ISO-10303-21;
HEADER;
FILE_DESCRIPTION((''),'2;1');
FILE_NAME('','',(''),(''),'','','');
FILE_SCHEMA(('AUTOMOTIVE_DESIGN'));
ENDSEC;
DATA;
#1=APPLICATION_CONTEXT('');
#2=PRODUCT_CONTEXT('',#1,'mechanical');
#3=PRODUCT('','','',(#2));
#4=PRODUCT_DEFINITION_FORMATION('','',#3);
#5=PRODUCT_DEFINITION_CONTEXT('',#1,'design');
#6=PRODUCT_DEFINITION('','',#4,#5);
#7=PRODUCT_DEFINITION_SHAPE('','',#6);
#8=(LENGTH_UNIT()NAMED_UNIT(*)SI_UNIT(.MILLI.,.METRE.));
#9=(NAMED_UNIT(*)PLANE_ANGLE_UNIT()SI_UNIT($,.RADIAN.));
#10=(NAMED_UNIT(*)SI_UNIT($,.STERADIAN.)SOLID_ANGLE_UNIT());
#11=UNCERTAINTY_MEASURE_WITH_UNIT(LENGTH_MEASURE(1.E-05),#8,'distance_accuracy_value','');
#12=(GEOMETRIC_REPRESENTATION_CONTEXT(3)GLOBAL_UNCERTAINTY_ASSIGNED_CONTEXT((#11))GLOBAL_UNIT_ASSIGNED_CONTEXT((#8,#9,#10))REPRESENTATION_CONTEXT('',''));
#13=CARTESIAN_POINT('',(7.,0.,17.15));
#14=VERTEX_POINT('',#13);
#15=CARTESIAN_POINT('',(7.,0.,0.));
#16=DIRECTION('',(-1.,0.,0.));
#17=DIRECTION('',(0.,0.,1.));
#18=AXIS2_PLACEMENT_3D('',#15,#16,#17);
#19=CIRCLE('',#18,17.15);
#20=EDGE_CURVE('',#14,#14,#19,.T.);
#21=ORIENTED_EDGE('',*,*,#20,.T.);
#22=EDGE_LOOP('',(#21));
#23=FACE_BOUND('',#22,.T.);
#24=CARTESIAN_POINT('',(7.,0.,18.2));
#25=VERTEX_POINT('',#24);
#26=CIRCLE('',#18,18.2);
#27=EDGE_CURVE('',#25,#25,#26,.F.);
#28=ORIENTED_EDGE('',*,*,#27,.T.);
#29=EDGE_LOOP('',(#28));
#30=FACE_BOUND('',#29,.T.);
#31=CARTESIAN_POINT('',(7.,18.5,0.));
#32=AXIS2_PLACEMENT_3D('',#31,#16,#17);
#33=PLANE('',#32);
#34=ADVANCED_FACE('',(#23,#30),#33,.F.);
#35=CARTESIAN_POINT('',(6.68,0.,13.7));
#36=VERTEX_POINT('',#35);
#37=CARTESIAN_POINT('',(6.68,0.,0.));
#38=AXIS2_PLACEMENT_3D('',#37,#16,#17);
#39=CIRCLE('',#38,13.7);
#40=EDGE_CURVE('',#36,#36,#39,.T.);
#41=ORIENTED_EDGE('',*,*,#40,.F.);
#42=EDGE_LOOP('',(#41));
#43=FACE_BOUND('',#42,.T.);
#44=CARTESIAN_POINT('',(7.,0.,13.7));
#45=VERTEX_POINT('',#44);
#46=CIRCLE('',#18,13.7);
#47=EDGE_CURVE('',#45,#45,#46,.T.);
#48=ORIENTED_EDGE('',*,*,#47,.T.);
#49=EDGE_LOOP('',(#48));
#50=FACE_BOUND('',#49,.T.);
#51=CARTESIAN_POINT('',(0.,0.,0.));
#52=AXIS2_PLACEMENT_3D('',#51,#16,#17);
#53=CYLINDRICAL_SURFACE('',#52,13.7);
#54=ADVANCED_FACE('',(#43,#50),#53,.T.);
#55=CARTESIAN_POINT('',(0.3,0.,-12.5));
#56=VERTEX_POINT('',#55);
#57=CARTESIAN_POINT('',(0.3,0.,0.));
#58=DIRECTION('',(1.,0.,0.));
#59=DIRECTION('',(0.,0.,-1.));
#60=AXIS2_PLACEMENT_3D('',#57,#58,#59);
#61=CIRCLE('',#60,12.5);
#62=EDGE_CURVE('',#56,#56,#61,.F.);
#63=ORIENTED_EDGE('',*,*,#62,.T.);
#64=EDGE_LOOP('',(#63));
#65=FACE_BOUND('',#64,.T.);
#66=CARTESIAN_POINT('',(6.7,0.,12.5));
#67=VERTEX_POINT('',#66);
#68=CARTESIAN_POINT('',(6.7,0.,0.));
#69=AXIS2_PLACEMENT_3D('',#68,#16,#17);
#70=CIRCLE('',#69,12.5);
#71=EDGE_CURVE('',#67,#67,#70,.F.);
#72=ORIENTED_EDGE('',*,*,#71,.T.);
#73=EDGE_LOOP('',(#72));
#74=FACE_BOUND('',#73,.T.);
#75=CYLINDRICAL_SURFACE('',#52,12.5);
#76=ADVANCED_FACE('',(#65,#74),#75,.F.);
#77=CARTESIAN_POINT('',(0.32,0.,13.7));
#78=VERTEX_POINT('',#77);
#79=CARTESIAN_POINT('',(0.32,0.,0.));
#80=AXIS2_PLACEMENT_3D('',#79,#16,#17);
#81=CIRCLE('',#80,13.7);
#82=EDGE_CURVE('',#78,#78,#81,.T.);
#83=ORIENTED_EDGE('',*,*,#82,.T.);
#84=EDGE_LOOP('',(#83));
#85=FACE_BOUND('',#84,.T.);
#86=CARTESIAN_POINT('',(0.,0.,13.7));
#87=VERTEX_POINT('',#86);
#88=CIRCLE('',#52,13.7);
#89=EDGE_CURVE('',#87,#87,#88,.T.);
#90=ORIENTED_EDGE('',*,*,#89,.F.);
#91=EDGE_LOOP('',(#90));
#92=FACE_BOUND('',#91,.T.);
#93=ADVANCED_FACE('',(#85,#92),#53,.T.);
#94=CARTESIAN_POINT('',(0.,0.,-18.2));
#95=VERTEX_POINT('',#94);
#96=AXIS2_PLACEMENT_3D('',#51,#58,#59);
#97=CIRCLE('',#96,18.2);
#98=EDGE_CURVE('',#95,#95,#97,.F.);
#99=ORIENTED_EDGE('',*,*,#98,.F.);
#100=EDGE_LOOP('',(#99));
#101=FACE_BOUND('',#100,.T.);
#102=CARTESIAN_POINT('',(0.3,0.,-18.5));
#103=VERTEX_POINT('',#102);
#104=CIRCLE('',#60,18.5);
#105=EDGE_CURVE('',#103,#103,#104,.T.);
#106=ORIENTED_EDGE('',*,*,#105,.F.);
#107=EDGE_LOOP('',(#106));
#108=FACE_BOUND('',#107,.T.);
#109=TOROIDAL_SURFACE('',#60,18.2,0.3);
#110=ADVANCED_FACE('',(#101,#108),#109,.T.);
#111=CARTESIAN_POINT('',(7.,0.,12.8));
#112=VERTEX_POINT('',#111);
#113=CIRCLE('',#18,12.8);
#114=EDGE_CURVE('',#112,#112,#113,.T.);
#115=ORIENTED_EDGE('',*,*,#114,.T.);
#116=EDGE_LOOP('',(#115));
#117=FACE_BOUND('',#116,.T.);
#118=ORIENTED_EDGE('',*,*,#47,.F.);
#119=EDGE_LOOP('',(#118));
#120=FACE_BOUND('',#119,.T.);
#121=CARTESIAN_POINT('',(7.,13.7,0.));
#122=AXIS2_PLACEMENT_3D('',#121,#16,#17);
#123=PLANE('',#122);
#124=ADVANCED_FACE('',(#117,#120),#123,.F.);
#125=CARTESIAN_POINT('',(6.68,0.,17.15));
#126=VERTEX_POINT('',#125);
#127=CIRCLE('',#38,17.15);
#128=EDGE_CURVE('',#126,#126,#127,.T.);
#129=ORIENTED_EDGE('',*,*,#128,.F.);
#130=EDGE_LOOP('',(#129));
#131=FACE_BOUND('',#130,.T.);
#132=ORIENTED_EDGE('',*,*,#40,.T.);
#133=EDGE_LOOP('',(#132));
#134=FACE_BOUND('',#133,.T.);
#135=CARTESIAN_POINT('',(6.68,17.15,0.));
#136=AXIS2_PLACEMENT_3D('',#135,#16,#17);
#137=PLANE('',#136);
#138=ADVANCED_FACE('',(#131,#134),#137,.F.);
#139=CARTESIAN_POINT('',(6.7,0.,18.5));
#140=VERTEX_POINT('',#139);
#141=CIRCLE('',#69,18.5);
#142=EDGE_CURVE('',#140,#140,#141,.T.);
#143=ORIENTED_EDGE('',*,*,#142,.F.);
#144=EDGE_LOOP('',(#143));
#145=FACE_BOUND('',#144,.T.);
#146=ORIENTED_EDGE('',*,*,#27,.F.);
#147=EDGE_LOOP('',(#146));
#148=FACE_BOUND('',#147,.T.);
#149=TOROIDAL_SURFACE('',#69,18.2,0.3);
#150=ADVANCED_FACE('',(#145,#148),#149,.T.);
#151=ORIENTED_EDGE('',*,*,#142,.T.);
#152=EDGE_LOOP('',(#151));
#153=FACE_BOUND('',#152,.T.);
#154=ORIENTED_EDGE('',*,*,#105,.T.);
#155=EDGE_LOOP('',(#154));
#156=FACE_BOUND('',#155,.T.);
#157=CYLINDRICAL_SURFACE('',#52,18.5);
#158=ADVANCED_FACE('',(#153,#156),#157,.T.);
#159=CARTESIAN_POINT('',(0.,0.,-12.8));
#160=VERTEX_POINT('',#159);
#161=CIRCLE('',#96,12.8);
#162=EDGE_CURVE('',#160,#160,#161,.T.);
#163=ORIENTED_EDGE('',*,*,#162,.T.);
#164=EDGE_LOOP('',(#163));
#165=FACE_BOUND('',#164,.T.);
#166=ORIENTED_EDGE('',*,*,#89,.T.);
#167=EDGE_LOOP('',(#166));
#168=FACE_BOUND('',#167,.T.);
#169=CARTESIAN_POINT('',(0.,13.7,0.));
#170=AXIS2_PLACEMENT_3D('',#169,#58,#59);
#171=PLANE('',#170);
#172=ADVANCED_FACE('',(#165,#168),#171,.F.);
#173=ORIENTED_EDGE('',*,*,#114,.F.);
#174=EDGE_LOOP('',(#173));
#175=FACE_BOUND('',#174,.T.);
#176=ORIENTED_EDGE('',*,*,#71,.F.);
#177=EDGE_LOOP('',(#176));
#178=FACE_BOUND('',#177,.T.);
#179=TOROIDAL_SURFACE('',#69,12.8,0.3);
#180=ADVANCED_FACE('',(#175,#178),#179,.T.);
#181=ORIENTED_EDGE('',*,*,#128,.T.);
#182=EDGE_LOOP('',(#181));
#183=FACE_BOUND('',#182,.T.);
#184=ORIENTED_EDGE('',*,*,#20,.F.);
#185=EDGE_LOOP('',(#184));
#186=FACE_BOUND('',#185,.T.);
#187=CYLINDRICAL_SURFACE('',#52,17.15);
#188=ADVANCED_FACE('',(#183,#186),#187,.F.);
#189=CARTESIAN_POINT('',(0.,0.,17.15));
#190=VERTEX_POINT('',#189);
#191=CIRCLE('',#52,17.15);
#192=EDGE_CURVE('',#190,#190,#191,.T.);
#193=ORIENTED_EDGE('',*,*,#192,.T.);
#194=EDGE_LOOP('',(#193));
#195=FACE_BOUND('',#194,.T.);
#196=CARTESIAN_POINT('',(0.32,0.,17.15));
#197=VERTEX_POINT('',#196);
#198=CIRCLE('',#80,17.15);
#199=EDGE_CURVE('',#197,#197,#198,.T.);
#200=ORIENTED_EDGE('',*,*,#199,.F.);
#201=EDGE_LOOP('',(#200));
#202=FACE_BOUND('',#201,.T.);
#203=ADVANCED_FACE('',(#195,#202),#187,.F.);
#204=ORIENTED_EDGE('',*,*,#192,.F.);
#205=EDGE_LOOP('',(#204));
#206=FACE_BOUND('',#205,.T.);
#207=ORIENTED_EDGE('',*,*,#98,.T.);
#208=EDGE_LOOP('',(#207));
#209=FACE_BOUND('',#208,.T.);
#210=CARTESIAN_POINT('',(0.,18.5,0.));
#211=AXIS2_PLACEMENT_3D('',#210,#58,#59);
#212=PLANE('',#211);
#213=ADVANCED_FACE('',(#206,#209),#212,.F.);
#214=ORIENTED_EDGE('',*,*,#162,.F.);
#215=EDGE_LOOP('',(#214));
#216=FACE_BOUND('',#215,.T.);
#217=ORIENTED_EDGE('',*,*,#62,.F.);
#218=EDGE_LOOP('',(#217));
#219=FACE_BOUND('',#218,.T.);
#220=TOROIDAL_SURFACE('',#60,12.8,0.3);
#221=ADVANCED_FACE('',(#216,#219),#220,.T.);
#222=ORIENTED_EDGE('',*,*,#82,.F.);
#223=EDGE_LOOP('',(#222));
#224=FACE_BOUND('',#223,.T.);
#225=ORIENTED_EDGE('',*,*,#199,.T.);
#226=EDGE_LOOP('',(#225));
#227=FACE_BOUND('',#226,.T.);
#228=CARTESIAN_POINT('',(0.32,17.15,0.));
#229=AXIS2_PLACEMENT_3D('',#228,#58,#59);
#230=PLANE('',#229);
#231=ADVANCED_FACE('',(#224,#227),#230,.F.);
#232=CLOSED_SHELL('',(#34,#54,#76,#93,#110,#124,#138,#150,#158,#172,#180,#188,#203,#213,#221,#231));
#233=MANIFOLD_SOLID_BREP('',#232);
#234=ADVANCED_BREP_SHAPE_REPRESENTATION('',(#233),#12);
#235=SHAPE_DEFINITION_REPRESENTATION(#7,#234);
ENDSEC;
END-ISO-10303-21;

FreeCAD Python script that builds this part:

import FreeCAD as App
import Part
import Sketcher


def edges_at(feature, points):
    """Names of the edges that pass closest to the given points."""
    edges = feature.Shape.Edges
    near = lambda p: min(range(len(edges)), key=lambda i: edges[i].distToShape(Part.Vertex(*p))[0])
    return sorted({f"Edge{near(p) + 1}" for p in points})

doc = App.newDocument("Part")
body = doc.addObject("PartDesign::Body", "Body")

# Sketch on XY plane
sketch1 = doc.addObject("Sketcher::SketchObject", "Sketch")
body.addObject(sketch1)
sketch1.AttachmentSupport = (doc.XY_Plane, [""])
sketch1.MapMode = "FlatFace"
sketch1.addGeometry([
    Part.LineSegment(App.Vector(0, 12.5, 0), App.Vector(7, 12.5, 0)),  # 0
    Part.LineSegment(App.Vector(7, 12.5, 0), App.Vector(7, 13.7, 0)),  # 1
    Part.LineSegment(App.Vector(7, 13.7, 0), App.Vector(6.68, 13.7, 0)),  # 2
    Part.LineSegment(App.Vector(6.68, 13.7, 0), App.Vector(6.68, 17.15, 0)),  # 3
    Part.LineSegment(App.Vector(6.68, 17.15, 0), App.Vector(7, 17.15, 0)),  # 4
    Part.LineSegment(App.Vector(7, 17.15, 0), App.Vector(7, 18.5, 0)),  # 5
    Part.LineSegment(App.Vector(7, 18.5, 0), App.Vector(0, 18.5, 0)),  # 6
    Part.LineSegment(App.Vector(0, 18.5, 0), App.Vector(0, 17.15, 0)),  # 7
    Part.LineSegment(App.Vector(0, 17.15, 0), App.Vector(0.32, 17.15, 0)),  # 8
    Part.LineSegment(App.Vector(0.32, 17.15, 0), App.Vector(0.32, 13.7, 0)),  # 9
    Part.LineSegment(App.Vector(0.32, 13.7, 0), App.Vector(0, 13.7, 0)),  # 10
    Part.LineSegment(App.Vector(0, 13.7, 0), App.Vector(0, 12.5, 0)),  # 11
], False)
sketch1.addConstraint([
    Sketcher.Constraint("Coincident", 0, 2, 1, 1),
    Sketcher.Constraint("Coincident", 1, 2, 2, 1),
    Sketcher.Constraint("Coincident", 2, 2, 3, 1),
    Sketcher.Constraint("Coincident", 3, 2, 4, 1),
    Sketcher.Constraint("Coincident", 4, 2, 5, 1),
    Sketcher.Constraint("Coincident", 5, 2, 6, 1),
    Sketcher.Constraint("Coincident", 6, 2, 7, 1),
    Sketcher.Constraint("Coincident", 7, 2, 8, 1),
    Sketcher.Constraint("Coincident", 8, 2, 9, 1),
    Sketcher.Constraint("Coincident", 9, 2, 10, 1),
    Sketcher.Constraint("Coincident", 10, 2, 11, 1),
    Sketcher.Constraint("Coincident", 11, 2, 0, 1),
    Sketcher.Constraint("Horizontal", 0),
    Sketcher.Constraint("Vertical", 1),
    Sketcher.Constraint("Horizontal", 2),
    Sketcher.Constraint("Vertical", 3),
    Sketcher.Constraint("Horizontal", 4),
    Sketcher.Constraint("Vertical", 5),
    Sketcher.Constraint("Horizontal", 6),
    Sketcher.Constraint("Vertical", 7),
    Sketcher.Constraint("Horizontal", 8),
    Sketcher.Constraint("Vertical", 9),
    Sketcher.Constraint("Horizontal", 10),
    Sketcher.Constraint("Vertical", 11),
    Sketcher.Constraint("PointOnObject", 6, 2, -2),
    Sketcher.Constraint("PointOnObject", 10, 2, -2),
    Sketcher.Constraint("Horizontal", 4, 2, 7, 2),
    Sketcher.Constraint("Horizontal", 2, 2, 9, 2),
    Sketcher.Constraint("Vertical", 1, 2, 4, 2),
    Sketcher.Constraint("Equal", 4, 8),
    Sketcher.Constraint("DistanceX", 0, 1, 0, 2, 7.0),
    Sketcher.Constraint("DistanceY", 1, 1, 1, 2, 1.2),
    Sketcher.Constraint("DistanceY", 0, 2, 5, 2, 6.0),
    Sketcher.Constraint("DistanceX", 2, 2, 2, 1, 0.32),
    Sketcher.Constraint("DistanceY", 3, 1, 3, 2, 3.45),
    Sketcher.Constraint("DistanceY", -1, 1, 0, 2, 12.5),
])
revolution = doc.addObject("PartDesign::Revolution", "Revolution")
body.addObject(revolution)
revolution.Profile = sketch1
revolution.ReferenceAxis = (sketch1, ["H_Axis"])
revolution.Angle = 360
doc.recompute()

fillet = doc.addObject("PartDesign::Fillet", "Fillet")
body.addObject(fillet)
fillet.Base = (revolution, edges_at(revolution, [(0, 0, -18.5), (7, 0, -18.5)]))
fillet.Radius = 0.3
doc.recompute()

fillet2 = doc.addObject("PartDesign::Fillet", "Fillet001")
body.addObject(fillet2)
fillet2.Base = (fillet, edges_at(fillet, [(7, 0, -12.5), (0, 0, -12.5)]))
fillet2.Radius = 0.3

doc.recompute()
